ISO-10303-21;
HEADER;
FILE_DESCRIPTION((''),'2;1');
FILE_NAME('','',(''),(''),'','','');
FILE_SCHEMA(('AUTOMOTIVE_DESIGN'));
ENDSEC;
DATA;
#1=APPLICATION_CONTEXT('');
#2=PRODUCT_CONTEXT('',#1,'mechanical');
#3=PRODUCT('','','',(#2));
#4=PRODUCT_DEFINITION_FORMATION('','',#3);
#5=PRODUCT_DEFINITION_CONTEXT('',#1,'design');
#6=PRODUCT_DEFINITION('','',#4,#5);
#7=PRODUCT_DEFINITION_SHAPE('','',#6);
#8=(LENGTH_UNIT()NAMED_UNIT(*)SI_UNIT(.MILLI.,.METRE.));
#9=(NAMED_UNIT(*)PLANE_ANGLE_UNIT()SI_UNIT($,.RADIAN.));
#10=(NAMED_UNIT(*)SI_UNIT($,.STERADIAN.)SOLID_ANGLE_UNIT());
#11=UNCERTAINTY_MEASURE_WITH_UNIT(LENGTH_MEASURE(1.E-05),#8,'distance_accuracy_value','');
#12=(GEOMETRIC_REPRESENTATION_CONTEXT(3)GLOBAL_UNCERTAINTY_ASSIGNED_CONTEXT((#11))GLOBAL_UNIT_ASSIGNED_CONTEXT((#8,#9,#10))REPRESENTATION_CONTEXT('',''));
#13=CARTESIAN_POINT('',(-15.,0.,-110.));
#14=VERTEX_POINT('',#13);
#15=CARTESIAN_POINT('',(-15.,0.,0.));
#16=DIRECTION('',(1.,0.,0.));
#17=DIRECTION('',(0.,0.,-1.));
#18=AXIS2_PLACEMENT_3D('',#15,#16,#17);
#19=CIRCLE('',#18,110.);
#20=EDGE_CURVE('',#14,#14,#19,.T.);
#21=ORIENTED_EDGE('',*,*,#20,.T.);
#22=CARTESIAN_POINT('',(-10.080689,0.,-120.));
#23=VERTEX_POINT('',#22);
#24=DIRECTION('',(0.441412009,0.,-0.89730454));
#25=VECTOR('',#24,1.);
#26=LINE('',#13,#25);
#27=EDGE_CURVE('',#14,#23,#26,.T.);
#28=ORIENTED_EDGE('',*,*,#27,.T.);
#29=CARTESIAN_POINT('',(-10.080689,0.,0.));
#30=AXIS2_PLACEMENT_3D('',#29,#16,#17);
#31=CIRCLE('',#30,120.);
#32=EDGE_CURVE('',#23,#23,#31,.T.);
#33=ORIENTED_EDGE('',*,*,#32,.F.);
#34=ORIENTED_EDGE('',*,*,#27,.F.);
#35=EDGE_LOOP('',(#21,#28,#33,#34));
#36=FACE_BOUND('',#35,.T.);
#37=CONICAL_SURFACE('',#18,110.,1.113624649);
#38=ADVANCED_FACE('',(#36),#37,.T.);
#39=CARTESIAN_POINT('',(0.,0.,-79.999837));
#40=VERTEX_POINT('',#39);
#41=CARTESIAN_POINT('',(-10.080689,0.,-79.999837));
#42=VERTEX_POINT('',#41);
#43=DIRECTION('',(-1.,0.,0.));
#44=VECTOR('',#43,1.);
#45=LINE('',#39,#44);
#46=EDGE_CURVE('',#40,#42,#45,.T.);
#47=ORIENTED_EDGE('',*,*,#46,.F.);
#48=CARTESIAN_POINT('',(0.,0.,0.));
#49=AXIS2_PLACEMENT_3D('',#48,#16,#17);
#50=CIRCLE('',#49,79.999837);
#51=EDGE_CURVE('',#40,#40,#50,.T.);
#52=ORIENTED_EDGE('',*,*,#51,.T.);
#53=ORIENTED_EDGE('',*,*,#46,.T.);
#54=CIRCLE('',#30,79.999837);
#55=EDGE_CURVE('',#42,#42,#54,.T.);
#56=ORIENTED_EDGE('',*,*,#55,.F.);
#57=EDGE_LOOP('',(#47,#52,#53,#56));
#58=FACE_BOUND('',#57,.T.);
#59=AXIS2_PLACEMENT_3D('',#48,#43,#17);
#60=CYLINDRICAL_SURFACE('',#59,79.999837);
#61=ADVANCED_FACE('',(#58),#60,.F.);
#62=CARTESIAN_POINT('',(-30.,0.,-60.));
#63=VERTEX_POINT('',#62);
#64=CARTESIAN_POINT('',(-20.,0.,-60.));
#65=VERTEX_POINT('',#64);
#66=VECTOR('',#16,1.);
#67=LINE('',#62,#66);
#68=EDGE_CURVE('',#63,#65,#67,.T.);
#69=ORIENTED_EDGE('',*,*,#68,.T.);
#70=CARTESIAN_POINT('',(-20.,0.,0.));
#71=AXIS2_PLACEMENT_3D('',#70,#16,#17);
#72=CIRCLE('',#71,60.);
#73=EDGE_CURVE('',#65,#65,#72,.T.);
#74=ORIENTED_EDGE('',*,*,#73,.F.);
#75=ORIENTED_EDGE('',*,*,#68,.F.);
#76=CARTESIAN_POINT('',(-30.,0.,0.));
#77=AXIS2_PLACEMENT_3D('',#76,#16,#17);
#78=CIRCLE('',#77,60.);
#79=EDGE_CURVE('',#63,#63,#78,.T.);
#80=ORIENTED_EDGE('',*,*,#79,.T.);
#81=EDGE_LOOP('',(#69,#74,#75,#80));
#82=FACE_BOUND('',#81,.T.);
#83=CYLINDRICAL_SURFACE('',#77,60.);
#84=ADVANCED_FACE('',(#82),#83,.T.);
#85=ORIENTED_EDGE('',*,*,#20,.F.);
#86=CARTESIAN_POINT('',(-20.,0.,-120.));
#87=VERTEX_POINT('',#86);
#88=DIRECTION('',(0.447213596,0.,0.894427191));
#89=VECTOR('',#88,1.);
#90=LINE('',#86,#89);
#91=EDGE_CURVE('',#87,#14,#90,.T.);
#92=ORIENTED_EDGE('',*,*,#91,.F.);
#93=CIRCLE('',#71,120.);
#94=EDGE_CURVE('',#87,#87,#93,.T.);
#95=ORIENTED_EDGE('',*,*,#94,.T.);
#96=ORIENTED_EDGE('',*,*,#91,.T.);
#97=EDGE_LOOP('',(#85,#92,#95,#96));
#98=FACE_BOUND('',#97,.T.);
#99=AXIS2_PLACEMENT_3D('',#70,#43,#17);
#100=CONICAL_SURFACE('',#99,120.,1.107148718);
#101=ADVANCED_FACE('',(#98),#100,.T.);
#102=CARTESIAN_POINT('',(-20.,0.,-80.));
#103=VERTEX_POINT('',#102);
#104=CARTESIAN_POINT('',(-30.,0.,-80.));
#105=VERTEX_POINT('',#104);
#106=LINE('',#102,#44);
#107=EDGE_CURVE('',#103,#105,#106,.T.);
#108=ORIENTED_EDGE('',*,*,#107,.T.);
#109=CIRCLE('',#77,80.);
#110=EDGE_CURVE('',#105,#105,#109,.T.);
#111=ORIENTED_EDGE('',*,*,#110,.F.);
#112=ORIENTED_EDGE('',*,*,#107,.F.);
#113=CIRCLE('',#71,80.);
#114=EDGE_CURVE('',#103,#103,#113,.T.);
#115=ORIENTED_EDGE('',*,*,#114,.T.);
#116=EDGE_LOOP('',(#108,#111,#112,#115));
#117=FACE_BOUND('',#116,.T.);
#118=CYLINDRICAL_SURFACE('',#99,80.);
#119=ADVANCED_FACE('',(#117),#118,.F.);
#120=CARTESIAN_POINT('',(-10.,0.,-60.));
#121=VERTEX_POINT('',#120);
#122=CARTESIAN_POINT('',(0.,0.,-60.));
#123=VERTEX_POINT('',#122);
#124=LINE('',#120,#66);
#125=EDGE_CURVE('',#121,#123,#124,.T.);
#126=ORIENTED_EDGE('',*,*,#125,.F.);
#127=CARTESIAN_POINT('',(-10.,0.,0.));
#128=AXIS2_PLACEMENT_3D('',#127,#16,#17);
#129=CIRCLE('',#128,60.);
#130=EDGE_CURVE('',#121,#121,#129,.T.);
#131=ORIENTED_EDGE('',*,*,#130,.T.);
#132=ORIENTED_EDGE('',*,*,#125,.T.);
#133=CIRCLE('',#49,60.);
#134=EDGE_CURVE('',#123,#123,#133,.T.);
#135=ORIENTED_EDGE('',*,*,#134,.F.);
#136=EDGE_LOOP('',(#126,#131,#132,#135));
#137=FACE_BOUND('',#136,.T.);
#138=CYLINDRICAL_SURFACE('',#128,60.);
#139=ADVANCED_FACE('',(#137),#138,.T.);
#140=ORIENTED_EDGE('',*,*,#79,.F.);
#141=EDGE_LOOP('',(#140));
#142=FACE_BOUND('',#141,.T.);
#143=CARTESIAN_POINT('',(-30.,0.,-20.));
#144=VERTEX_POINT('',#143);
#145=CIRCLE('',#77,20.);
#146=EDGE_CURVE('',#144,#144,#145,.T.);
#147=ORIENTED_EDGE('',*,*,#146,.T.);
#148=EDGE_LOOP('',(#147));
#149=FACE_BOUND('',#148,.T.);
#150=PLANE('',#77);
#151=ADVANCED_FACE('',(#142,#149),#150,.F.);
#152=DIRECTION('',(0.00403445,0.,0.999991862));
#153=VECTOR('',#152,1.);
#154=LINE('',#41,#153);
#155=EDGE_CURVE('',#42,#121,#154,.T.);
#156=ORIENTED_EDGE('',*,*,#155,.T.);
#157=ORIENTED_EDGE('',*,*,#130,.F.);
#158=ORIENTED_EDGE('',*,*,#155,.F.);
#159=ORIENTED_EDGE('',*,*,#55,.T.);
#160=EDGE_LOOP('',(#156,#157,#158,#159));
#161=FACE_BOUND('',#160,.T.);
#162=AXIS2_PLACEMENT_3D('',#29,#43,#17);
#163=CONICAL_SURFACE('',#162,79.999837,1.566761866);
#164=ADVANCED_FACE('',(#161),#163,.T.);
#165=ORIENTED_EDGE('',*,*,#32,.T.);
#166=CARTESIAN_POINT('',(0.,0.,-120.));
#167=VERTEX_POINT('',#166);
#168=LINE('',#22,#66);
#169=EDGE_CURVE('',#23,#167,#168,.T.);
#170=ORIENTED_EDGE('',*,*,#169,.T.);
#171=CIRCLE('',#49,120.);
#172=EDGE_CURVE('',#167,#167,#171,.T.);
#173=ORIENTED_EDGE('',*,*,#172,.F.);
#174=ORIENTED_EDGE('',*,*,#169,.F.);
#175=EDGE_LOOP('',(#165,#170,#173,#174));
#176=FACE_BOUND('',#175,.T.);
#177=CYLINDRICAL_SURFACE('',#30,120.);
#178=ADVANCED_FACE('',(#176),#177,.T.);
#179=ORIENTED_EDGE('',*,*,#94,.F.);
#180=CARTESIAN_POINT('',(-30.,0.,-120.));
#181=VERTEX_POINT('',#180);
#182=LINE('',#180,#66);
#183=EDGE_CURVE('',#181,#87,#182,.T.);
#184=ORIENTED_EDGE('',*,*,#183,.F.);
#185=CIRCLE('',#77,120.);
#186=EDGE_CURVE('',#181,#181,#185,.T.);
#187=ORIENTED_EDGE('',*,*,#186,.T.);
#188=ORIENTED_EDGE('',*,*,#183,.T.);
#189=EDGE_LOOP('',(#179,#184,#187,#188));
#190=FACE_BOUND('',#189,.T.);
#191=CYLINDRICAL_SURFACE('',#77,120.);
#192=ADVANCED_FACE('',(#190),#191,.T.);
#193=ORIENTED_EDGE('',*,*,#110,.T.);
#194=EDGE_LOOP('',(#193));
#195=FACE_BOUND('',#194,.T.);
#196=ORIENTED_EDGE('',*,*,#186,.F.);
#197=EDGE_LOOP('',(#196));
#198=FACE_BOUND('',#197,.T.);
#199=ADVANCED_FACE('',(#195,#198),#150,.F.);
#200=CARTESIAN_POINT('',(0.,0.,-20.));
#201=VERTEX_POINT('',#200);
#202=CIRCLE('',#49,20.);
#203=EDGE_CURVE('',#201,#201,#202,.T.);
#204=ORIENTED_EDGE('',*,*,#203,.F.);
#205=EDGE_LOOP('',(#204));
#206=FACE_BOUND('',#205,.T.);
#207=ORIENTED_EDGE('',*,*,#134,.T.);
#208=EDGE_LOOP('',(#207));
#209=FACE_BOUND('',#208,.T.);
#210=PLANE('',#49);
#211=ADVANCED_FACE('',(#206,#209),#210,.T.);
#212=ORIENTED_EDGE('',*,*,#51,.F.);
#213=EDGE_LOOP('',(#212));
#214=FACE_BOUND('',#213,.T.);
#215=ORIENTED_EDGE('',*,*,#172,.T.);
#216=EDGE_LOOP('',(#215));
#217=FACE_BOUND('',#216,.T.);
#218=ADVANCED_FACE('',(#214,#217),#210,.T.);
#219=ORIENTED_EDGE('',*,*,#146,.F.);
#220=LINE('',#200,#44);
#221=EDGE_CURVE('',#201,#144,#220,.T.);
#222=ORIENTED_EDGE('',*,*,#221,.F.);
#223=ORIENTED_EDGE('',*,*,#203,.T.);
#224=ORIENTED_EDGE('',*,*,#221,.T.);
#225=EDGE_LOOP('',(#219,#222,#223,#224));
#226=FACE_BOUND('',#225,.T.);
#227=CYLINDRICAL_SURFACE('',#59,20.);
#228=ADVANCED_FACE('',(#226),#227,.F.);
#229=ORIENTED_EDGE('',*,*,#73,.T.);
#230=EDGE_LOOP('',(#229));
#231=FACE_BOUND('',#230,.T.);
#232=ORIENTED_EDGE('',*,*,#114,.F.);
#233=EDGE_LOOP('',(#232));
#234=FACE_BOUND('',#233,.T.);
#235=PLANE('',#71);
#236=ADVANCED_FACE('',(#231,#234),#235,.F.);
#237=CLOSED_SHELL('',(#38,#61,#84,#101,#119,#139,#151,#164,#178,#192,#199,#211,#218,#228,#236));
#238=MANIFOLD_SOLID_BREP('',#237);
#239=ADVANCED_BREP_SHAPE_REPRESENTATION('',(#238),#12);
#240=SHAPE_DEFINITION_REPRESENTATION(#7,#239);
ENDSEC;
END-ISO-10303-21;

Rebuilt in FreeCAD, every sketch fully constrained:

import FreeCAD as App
import Part
import Sketcher


def add_polygon(sketch, points):
    """Adds a closed chain of lines whose ends are joined by coincident constraints."""
    first, n = sketch.GeometryCount, len(points)
    for a, b in zip(points, points[1:] + points[:1]):
        sketch.addGeometry(Part.LineSegment(App.Vector(*a, 0), App.Vector(*b, 0)), False)
    for i in range(n):
        sketch.addConstraint(Sketcher.Constraint("Coincident", first + i, 2, first + (i + 1) % n, 1))

doc = App.newDocument("Part")
params = doc.addObject("Spreadsheet::Sheet", "Params")
for row, (alias, value) in enumerate([
    ("sketch1_width", "30 mm"),
    ("sketch1_width2", "10 mm"),
    ("sketch1_height", "40 mm"),
    ("sketch1_height2", "20 mm"),
    ("sketch1_length", "20 mm"),
    ("revolution_angle", "360 deg"),
], start=1):
    params.set(f"A{row}", alias)
    params.set(f"B{row}", "=" + value)
    params.setAlias(f"B{row}", alias)

body = doc.addObject("PartDesign::Body", "Body")

# Sketch on XZ plane
sketch1 = body.newObject("Sketcher::SketchObject", "Sketch")
sketch1.AttachmentSupport = (doc.getObject("XZ_Plane"), [""])
sketch1.MapMode = "FlatFace"
add_polygon(sketch1, [(0, -60), (0, -20), (-30, -20), (-30, -60), (-20, -60), (-20, -80), (-30, -80), (-30, -120), (-20, -120), (-15, -110), (-10.080689, -120), (0, -120), (0, -79.999837), (-10.080689, -79.999837), (-10, -60)])  # lines 0-14
sketch1.addConstraint([
    Sketcher.Constraint("Vertical", 0),
    Sketcher.Constraint("Horizontal", 1),
    Sketcher.Constraint("Vertical", 2),
    Sketcher.Constraint("Horizontal", 3),
    Sketcher.Constraint("Vertical", 4),
    Sketcher.Constraint("Horizontal", 5),
    Sketcher.Constraint("Vertical", 6),
    Sketcher.Constraint("Horizontal", 7),
    Sketcher.Constraint("Horizontal", 10),
    Sketcher.Constraint("Vertical", 11),
    Sketcher.Constraint("Horizontal", 12),
    Sketcher.Constraint("Horizontal", 14),
    Sketcher.Constraint("PointOnObject", 0, 2, -2),
    Sketcher.Constraint("PointOnObject", 10, 2, -2),
    Sketcher.Constraint("Horizontal", 7, 2, 9, 2),
    Sketcher.Constraint("Horizontal", 3, 2, 13, 2),
    Sketcher.Constraint("Vertical", 2, 2, 5, 2),
    Sketcher.Constraint("Vertical", 4, 2, 7, 2),
    Sketcher.Constraint("Vertical", 9, 2, 12, 2),
    Sketcher.Constraint("Equal", 7, 14),
    Sketcher.Constraint("Equal", 2, 6),
    Sketcher.Constraint("DistanceX", 1, 2, 1, 1, 30.0),
    Sketcher.Constraint("DistanceX", 3, 1, 3, 2, 10.0),
    Sketcher.Constraint("DistanceY", 0, 1, 0, 2, 40.0),
    Sketcher.Constraint("DistanceY", 4, 2, 4, 1, 20.0),
    Sketcher.Constraint("Distance", 13, 20.0),
    Sketcher.Constraint("DistanceY", 0, 2, -1, 1, 20.0),
    Sketcher.Constraint("DistanceX", 8, 2, -1, 1, 15.0),
    Sketcher.Constraint("DistanceY", 8, 2, -1, 1, 110.0),
    Sketcher.Constraint("DistanceX", 10, 1, 10, 2, 10.080689),
])
sketch1.setExpression("Constraints[36]", "Params.sketch1_width")
sketch1.setExpression("Constraints[37]", "Params.sketch1_width2")
sketch1.setExpression("Constraints[38]", "Params.sketch1_height")
sketch1.setExpression("Constraints[39]", "Params.sketch1_height2")
sketch1.setExpression("Constraints[40]", "Params.sketch1_length")
revolution = body.newObject("PartDesign::Revolution", "Revolution")
revolution.Profile = sketch1
revolution.ReferenceAxis = (sketch1, ["H_Axis"])
revolution.setExpression("Angle", "Params.revolution_angle")

doc.recompute()
